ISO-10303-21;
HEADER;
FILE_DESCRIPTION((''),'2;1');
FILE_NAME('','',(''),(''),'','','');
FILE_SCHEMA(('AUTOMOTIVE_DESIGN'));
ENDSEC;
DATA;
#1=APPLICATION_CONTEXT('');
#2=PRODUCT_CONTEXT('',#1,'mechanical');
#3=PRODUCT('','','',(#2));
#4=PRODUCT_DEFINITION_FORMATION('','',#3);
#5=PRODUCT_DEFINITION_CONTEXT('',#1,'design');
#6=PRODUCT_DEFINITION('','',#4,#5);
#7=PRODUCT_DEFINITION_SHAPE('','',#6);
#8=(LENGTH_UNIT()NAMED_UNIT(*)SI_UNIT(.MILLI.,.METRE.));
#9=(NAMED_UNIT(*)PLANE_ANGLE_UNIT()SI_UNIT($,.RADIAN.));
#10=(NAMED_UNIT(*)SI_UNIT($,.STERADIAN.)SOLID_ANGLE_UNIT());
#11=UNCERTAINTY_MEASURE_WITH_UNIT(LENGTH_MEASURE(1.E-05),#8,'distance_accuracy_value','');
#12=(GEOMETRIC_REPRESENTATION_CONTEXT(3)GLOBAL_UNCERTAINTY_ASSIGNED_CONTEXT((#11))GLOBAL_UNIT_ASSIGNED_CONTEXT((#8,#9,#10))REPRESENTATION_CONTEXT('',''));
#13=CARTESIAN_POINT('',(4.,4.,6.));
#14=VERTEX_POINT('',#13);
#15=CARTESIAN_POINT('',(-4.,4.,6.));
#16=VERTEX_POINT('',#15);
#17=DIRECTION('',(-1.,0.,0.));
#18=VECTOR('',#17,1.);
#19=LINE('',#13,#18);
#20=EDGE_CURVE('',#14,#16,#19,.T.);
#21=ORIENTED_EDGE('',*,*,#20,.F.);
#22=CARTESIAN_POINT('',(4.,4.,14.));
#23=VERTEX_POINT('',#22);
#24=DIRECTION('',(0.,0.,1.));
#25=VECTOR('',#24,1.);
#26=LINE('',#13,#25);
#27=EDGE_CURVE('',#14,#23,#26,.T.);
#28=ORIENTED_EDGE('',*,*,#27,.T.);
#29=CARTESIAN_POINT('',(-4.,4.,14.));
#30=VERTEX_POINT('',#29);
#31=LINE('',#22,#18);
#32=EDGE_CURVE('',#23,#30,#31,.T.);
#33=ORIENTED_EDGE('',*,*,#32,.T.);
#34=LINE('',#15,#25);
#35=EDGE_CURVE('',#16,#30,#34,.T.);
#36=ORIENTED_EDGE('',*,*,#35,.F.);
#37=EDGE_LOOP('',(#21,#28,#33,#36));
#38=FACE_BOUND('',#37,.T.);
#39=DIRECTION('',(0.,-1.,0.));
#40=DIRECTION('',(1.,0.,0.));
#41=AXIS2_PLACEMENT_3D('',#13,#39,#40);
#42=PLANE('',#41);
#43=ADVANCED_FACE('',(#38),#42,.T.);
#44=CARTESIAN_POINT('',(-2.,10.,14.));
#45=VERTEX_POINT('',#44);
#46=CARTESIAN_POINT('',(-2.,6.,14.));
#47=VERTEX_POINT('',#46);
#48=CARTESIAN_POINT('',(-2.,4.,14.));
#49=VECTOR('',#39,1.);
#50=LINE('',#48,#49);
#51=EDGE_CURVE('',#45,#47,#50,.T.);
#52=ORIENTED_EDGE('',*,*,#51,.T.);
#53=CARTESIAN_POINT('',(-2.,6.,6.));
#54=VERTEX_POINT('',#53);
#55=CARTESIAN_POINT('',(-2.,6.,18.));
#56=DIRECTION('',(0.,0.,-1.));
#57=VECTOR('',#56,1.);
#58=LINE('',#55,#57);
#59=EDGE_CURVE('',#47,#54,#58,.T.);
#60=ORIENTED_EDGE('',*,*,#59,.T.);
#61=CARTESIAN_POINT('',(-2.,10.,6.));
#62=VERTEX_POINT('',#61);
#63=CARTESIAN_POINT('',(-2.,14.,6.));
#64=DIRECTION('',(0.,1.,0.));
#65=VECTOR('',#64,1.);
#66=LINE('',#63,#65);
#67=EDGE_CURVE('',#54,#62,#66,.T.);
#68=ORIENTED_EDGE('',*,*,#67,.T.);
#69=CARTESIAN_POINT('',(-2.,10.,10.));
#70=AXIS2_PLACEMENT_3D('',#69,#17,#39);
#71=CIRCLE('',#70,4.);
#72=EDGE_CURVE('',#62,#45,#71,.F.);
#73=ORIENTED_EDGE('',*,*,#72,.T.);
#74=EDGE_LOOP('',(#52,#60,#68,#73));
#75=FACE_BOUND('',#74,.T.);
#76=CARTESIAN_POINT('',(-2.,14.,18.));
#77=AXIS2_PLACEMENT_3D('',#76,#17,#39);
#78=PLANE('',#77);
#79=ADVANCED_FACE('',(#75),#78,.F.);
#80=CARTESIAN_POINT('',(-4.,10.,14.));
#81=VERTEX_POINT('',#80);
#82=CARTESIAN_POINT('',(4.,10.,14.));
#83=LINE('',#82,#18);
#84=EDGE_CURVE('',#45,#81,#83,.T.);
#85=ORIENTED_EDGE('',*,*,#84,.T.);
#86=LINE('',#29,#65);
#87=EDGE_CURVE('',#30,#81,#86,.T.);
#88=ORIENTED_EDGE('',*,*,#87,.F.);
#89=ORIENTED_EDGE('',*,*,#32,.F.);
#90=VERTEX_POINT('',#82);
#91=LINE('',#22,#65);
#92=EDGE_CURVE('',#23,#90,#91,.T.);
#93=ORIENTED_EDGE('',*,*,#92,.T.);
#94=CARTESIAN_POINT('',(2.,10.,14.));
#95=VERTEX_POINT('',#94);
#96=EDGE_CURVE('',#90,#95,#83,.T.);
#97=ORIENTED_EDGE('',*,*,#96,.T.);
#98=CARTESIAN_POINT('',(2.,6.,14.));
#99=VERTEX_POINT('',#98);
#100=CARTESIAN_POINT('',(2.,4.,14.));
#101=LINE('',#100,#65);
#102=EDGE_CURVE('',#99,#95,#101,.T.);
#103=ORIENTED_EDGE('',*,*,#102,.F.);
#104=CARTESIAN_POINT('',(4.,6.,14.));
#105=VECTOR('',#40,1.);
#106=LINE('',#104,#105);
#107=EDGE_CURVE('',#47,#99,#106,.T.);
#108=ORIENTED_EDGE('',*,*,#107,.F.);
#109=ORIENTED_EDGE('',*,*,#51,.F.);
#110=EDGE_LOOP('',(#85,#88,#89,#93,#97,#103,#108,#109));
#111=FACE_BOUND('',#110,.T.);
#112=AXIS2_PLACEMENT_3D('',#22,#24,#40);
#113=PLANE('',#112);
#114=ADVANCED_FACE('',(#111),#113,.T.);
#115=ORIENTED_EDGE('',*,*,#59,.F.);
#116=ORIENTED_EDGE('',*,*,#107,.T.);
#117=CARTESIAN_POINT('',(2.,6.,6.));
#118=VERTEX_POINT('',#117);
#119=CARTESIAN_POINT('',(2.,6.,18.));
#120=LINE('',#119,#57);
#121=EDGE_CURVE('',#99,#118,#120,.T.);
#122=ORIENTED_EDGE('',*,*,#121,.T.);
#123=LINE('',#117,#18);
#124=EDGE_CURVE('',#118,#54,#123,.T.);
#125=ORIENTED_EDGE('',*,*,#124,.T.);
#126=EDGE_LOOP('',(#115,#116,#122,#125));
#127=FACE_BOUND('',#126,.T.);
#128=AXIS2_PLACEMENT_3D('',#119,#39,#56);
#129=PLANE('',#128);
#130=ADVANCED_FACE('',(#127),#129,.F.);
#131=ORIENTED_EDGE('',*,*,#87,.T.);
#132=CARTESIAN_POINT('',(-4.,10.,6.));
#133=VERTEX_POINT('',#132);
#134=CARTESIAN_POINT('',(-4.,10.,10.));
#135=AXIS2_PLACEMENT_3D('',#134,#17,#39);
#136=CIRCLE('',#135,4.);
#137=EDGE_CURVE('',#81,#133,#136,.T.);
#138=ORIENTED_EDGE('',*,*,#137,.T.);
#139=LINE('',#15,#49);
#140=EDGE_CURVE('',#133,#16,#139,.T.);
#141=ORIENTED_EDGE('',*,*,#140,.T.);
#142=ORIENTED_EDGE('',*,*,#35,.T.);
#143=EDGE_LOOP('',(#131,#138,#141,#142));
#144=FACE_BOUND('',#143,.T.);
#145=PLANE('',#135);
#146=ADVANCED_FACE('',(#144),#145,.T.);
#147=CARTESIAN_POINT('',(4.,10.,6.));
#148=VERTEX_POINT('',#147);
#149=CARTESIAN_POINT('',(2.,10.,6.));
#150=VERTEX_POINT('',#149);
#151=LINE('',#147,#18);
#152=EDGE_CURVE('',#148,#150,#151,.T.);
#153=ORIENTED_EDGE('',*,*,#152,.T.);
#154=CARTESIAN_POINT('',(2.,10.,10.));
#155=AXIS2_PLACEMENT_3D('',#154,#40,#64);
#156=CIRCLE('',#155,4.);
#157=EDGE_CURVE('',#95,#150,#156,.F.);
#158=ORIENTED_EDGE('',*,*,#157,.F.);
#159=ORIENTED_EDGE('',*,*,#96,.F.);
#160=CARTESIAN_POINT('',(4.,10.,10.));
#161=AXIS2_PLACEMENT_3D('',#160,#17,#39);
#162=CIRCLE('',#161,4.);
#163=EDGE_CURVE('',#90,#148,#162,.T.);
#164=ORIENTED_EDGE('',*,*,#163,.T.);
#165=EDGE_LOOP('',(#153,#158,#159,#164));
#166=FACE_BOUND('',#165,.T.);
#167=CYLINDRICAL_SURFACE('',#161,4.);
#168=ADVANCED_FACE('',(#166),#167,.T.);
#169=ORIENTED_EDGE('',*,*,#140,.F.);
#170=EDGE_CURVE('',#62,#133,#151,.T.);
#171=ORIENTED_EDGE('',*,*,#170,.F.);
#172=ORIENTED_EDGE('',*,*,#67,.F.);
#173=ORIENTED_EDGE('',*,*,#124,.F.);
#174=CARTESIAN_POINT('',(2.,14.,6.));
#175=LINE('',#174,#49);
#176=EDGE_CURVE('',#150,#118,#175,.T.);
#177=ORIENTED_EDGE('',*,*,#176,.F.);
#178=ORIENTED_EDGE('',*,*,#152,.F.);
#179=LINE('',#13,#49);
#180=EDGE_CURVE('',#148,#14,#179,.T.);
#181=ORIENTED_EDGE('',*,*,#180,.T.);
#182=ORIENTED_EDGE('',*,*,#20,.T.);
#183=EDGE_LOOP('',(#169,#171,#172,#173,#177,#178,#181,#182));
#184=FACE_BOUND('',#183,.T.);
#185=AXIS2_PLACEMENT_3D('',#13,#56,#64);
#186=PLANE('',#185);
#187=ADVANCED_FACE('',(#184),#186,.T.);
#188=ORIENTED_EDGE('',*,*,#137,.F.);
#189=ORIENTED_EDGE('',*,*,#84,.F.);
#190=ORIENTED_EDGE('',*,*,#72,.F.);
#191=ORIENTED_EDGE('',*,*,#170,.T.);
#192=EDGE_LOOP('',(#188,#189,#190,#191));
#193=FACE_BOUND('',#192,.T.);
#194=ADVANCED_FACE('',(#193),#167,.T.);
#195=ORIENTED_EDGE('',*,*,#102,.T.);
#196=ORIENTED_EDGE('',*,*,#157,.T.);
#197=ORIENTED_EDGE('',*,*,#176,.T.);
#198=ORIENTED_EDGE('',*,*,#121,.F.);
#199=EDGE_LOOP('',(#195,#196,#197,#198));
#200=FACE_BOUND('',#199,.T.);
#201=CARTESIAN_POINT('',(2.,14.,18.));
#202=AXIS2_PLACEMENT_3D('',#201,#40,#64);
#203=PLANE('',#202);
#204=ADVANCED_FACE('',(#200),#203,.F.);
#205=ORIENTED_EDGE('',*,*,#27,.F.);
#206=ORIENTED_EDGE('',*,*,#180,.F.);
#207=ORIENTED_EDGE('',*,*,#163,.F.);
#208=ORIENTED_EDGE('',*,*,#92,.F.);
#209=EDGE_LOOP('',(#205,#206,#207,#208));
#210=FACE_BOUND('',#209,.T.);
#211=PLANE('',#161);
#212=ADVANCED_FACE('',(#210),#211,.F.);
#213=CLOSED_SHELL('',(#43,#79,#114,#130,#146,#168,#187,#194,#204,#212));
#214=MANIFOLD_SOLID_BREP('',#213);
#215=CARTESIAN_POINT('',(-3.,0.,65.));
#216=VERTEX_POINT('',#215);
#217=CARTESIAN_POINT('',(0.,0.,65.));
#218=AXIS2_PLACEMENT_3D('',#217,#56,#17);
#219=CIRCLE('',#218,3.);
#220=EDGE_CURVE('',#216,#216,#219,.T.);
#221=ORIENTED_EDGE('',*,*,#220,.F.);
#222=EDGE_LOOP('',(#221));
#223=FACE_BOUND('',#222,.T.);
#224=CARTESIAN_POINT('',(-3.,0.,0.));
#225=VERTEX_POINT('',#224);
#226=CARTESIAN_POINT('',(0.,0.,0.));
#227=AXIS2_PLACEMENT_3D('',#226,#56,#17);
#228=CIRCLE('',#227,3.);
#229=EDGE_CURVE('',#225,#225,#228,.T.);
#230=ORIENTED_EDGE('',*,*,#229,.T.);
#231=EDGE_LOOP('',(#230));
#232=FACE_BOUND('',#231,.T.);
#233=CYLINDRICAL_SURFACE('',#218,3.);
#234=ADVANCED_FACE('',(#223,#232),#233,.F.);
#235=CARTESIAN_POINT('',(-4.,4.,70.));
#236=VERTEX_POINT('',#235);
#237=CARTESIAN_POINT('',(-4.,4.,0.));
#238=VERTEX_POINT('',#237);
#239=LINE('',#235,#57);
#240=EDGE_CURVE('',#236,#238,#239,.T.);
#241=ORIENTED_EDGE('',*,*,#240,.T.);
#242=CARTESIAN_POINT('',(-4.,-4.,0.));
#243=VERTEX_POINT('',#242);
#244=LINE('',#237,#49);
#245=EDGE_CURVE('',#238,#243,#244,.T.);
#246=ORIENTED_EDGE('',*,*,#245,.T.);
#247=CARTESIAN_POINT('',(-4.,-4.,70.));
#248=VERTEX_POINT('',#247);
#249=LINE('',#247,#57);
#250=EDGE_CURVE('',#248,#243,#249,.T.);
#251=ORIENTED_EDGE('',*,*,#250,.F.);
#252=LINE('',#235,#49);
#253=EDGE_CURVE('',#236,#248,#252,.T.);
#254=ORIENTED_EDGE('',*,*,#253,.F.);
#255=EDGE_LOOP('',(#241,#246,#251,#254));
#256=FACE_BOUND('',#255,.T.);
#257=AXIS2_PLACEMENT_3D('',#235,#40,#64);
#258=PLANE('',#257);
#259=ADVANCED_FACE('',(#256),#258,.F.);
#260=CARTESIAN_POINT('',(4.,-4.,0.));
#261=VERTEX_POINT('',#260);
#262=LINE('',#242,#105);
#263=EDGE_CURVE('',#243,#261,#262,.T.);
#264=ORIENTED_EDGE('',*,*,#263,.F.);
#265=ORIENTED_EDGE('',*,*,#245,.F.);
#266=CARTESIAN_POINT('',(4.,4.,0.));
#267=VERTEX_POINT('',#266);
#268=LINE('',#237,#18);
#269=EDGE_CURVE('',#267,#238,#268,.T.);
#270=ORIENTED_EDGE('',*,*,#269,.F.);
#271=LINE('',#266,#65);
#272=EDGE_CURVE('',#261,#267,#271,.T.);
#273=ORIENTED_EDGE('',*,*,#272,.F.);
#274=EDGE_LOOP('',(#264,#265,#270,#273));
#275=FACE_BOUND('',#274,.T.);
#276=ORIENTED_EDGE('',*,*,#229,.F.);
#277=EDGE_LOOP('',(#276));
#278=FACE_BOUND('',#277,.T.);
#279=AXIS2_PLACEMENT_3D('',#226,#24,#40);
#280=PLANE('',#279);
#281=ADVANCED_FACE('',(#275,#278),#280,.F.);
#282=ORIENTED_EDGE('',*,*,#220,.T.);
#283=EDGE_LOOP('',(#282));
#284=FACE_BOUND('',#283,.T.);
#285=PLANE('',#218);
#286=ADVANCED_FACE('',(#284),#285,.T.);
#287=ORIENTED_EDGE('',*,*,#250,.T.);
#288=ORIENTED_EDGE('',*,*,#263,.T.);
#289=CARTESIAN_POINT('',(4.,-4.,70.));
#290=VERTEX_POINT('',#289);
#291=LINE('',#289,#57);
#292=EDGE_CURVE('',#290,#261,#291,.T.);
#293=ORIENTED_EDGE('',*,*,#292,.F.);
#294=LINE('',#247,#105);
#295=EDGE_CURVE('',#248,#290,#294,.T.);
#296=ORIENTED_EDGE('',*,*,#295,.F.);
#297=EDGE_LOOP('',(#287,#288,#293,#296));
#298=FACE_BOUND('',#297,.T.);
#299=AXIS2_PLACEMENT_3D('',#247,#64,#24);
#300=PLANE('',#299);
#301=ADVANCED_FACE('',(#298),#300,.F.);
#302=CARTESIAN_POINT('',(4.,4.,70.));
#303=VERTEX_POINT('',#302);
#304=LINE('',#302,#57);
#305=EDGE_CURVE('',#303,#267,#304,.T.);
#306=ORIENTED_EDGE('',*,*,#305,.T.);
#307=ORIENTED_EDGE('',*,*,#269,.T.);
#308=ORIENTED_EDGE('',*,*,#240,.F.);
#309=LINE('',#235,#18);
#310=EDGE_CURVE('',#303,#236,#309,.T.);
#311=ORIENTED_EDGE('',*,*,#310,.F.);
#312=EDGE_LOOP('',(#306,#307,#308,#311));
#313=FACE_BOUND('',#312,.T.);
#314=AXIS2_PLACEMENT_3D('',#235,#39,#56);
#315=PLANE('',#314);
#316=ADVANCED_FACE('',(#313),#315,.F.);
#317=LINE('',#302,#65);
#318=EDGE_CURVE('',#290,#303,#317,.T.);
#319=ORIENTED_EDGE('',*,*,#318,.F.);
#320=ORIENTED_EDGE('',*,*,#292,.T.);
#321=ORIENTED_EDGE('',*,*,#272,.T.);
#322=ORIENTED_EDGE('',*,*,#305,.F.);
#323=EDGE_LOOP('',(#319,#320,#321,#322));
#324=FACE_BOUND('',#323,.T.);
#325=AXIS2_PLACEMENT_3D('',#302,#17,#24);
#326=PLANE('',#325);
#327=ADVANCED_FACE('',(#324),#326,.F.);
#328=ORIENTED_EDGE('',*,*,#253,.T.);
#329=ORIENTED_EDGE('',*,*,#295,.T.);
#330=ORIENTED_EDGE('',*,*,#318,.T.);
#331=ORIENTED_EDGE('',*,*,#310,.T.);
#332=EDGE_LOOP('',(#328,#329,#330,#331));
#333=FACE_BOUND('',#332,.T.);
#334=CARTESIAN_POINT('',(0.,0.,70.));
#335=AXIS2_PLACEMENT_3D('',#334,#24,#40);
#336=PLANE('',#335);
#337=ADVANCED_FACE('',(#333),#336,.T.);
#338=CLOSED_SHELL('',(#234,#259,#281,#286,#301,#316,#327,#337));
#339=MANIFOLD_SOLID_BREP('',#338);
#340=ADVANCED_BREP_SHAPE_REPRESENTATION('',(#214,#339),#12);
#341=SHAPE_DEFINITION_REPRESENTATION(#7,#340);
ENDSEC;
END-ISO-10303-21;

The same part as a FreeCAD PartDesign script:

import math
import FreeCAD as App
import Part
import Sketcher

doc = App.newDocument("Part")
body = doc.addObject("PartDesign::Body", "Body")

sketch1 = doc.addObject("Sketcher::SketchObject", "Sketch")
body.addObject(sketch1)
sketch1.AttachmentSupport = (doc.XY_Plane, [""])
sketch1.MapMode = "FlatFace"
sketch1.addGeometry([
    Part.LineSegment(App.Vector(-4, 4, 0), App.Vector(-4, -4, 0)),
    Part.LineSegment(App.Vector(-4, -4, 0), App.Vector(4, -4, 0)),
    Part.LineSegment(App.Vector(4, -4, 0), App.Vector(4, 4, 0)),
    Part.LineSegment(App.Vector(4, 4, 0), App.Vector(-4, 4, 0)),
], False)
sketch1.addConstraint([
    Sketcher.Constraint("Coincident", 0, 2, 1, 1),
    Sketcher.Constraint("Coincident", 1, 2, 2, 1),
    Sketcher.Constraint("Coincident", 2, 2, 3, 1),
    Sketcher.Constraint("Coincident", 3, 2, 0, 1),
    Sketcher.Constraint("Vertical", 0),
    Sketcher.Constraint("Horizontal", 1),
    Sketcher.Constraint("Vertical", 2),
    Sketcher.Constraint("Horizontal", 3),
    Sketcher.Constraint("Symmetric", 0, 2, 2, 2, -1, 1),
    Sketcher.Constraint("Equal", 3, 0),
    Sketcher.Constraint("DistanceX", 1, 1, 1, 2, 8.0),
])
pad1 = doc.addObject("PartDesign::Pad", "Pad")
body.addObject(pad1)
pad1.Profile = sketch1
pad1.Length = 70

sketch2 = doc.addObject("Sketcher::SketchObject", "Sketch001")
body.addObject(sketch2)
sketch2.AttachmentSupport = (doc.XY_Plane, [""])
sketch2.MapMode = "FlatFace"
sketch2.addGeometry(Part.Circle(App.Vector(0, 0, 0), App.Vector(0, 0, 1), 3), False)
sketch2.addConstraint([
    Sketcher.Constraint("Coincident", 0, 3, -1, 1),
    Sketcher.Constraint("Diameter", 0, 6.0),
])
pocket1 = doc.addObject("PartDesign::Pocket", "Pocket")
body.addObject(pocket1)
pocket1.Profile = sketch2
pocket1.Length = 65
pocket1.Reversed = True
body2 = doc.addObject("PartDesign::Body", "Body001")

sketch3 = doc.addObject("Sketcher::SketchObject", "Sketch002")
body2.addObject(sketch3)
sketch3.AttachmentSupport = (doc.getObject("YZ_Plane001"), [""])
sketch3.MapMode = "FlatFace"
sketch3.AttachmentOffset = App.Placement(App.Vector(0, 0, -4), App.Rotation())
sketch3.addGeometry([
    Part.LineSegment(App.Vector(4, 6, 0), App.Vector(4, 14, 0)),
    Part.LineSegment(App.Vector(4, 14, 0), App.Vector(10, 14, 0)),
    Part.ArcOfCircle(Part.Circle(App.Vector(10, 10, 0), App.Vector(0, 0, 1), 4), math.radians(-90), math.radians(90)),
    Part.LineSegment(App.Vector(10, 6, 0), App.Vector(4, 6, 0)),
], False)
sketch3.addConstraint([
    Sketcher.Constraint("Coincident", 0, 2, 1, 1),
    Sketcher.Constraint("Tangent", 1, 2, 2, 2),
    Sketcher.Constraint("Tangent", 2, 1, 3, 1),
    Sketcher.Constraint("Coincident", 3, 2, 0, 1),
    Sketcher.Constraint("Vertical", 0),
    Sketcher.Constraint("Horizontal", 1),
    Sketcher.Constraint("Horizontal", 3),
    Sketcher.Constraint("Radius", 2, 4.0),
    Sketcher.Constraint("DistanceX", 1, 1, 1, 2, 6.0),
    Sketcher.Constraint("DistanceX", -1, 1, 2, 3, 10.0),
    Sketcher.Constraint("DistanceY", -1, 1, 2, 3, 10.0),
])
pad2 = doc.addObject("PartDesign::Pad", "Pad001")
body2.addObject(pad2)
pad2.Profile = sketch3
pad2.Length = 8

sketch4 = doc.addObject("Sketcher::SketchObject", "Sketch003")
body2.addObject(sketch4)
sketch4.AttachmentSupport = (doc.getObject("XY_Plane001"), [""])
sketch4.MapMode = "FlatFace"
sketch4.AttachmentOffset = App.Placement(App.Vector(0, 0, 6), App.Rotation())
sketch4.addGeometry([
    Part.LineSegment(App.Vector(2, 14, 0), App.Vector(2, 6, 0)),
    Part.LineSegment(App.Vector(2, 6, 0), App.Vector(-2, 6, 0)),
    Part.LineSegment(App.Vector(-2, 6, 0), App.Vector(-2, 14, 0)),
    Part.LineSegment(App.Vector(-2, 14, 0), App.Vector(2, 14, 0)),
], False)
sketch4.addConstraint([
    Sketcher.Constraint("Coincident", 0, 2, 1, 1),
    Sketcher.Constraint("Coincident", 1, 2, 2, 1),
    Sketcher.Constraint("Coincident", 2, 2, 3, 1),
    Sketcher.Constraint("Coincident", 3, 2, 0, 1),
    Sketcher.Constraint("Vertical", 0),
    Sketcher.Constraint("Horizontal", 1),
    Sketcher.Constraint("Vertical", 2),
    Sketcher.Constraint("Horizontal", 3),
    Sketcher.Constraint("DistanceX", 1, 2, 1, 1, 4.0),
    Sketcher.Constraint("DistanceY", 0, 2, 0, 1, 8.0),
    Sketcher.Constraint("DistanceX", -1, 1, 0, 2, 2.0),
    Sketcher.Constraint("DistanceY", -1, 1, 0, 2, 6.0),
])
pocket2 = doc.addObject("PartDesign::Pocket", "Pocket001")
body2.addObject(pocket2)
pocket2.Profile = sketch4
pocket2.Length = 12
pocket2.Reversed = True

doc.recompute()
